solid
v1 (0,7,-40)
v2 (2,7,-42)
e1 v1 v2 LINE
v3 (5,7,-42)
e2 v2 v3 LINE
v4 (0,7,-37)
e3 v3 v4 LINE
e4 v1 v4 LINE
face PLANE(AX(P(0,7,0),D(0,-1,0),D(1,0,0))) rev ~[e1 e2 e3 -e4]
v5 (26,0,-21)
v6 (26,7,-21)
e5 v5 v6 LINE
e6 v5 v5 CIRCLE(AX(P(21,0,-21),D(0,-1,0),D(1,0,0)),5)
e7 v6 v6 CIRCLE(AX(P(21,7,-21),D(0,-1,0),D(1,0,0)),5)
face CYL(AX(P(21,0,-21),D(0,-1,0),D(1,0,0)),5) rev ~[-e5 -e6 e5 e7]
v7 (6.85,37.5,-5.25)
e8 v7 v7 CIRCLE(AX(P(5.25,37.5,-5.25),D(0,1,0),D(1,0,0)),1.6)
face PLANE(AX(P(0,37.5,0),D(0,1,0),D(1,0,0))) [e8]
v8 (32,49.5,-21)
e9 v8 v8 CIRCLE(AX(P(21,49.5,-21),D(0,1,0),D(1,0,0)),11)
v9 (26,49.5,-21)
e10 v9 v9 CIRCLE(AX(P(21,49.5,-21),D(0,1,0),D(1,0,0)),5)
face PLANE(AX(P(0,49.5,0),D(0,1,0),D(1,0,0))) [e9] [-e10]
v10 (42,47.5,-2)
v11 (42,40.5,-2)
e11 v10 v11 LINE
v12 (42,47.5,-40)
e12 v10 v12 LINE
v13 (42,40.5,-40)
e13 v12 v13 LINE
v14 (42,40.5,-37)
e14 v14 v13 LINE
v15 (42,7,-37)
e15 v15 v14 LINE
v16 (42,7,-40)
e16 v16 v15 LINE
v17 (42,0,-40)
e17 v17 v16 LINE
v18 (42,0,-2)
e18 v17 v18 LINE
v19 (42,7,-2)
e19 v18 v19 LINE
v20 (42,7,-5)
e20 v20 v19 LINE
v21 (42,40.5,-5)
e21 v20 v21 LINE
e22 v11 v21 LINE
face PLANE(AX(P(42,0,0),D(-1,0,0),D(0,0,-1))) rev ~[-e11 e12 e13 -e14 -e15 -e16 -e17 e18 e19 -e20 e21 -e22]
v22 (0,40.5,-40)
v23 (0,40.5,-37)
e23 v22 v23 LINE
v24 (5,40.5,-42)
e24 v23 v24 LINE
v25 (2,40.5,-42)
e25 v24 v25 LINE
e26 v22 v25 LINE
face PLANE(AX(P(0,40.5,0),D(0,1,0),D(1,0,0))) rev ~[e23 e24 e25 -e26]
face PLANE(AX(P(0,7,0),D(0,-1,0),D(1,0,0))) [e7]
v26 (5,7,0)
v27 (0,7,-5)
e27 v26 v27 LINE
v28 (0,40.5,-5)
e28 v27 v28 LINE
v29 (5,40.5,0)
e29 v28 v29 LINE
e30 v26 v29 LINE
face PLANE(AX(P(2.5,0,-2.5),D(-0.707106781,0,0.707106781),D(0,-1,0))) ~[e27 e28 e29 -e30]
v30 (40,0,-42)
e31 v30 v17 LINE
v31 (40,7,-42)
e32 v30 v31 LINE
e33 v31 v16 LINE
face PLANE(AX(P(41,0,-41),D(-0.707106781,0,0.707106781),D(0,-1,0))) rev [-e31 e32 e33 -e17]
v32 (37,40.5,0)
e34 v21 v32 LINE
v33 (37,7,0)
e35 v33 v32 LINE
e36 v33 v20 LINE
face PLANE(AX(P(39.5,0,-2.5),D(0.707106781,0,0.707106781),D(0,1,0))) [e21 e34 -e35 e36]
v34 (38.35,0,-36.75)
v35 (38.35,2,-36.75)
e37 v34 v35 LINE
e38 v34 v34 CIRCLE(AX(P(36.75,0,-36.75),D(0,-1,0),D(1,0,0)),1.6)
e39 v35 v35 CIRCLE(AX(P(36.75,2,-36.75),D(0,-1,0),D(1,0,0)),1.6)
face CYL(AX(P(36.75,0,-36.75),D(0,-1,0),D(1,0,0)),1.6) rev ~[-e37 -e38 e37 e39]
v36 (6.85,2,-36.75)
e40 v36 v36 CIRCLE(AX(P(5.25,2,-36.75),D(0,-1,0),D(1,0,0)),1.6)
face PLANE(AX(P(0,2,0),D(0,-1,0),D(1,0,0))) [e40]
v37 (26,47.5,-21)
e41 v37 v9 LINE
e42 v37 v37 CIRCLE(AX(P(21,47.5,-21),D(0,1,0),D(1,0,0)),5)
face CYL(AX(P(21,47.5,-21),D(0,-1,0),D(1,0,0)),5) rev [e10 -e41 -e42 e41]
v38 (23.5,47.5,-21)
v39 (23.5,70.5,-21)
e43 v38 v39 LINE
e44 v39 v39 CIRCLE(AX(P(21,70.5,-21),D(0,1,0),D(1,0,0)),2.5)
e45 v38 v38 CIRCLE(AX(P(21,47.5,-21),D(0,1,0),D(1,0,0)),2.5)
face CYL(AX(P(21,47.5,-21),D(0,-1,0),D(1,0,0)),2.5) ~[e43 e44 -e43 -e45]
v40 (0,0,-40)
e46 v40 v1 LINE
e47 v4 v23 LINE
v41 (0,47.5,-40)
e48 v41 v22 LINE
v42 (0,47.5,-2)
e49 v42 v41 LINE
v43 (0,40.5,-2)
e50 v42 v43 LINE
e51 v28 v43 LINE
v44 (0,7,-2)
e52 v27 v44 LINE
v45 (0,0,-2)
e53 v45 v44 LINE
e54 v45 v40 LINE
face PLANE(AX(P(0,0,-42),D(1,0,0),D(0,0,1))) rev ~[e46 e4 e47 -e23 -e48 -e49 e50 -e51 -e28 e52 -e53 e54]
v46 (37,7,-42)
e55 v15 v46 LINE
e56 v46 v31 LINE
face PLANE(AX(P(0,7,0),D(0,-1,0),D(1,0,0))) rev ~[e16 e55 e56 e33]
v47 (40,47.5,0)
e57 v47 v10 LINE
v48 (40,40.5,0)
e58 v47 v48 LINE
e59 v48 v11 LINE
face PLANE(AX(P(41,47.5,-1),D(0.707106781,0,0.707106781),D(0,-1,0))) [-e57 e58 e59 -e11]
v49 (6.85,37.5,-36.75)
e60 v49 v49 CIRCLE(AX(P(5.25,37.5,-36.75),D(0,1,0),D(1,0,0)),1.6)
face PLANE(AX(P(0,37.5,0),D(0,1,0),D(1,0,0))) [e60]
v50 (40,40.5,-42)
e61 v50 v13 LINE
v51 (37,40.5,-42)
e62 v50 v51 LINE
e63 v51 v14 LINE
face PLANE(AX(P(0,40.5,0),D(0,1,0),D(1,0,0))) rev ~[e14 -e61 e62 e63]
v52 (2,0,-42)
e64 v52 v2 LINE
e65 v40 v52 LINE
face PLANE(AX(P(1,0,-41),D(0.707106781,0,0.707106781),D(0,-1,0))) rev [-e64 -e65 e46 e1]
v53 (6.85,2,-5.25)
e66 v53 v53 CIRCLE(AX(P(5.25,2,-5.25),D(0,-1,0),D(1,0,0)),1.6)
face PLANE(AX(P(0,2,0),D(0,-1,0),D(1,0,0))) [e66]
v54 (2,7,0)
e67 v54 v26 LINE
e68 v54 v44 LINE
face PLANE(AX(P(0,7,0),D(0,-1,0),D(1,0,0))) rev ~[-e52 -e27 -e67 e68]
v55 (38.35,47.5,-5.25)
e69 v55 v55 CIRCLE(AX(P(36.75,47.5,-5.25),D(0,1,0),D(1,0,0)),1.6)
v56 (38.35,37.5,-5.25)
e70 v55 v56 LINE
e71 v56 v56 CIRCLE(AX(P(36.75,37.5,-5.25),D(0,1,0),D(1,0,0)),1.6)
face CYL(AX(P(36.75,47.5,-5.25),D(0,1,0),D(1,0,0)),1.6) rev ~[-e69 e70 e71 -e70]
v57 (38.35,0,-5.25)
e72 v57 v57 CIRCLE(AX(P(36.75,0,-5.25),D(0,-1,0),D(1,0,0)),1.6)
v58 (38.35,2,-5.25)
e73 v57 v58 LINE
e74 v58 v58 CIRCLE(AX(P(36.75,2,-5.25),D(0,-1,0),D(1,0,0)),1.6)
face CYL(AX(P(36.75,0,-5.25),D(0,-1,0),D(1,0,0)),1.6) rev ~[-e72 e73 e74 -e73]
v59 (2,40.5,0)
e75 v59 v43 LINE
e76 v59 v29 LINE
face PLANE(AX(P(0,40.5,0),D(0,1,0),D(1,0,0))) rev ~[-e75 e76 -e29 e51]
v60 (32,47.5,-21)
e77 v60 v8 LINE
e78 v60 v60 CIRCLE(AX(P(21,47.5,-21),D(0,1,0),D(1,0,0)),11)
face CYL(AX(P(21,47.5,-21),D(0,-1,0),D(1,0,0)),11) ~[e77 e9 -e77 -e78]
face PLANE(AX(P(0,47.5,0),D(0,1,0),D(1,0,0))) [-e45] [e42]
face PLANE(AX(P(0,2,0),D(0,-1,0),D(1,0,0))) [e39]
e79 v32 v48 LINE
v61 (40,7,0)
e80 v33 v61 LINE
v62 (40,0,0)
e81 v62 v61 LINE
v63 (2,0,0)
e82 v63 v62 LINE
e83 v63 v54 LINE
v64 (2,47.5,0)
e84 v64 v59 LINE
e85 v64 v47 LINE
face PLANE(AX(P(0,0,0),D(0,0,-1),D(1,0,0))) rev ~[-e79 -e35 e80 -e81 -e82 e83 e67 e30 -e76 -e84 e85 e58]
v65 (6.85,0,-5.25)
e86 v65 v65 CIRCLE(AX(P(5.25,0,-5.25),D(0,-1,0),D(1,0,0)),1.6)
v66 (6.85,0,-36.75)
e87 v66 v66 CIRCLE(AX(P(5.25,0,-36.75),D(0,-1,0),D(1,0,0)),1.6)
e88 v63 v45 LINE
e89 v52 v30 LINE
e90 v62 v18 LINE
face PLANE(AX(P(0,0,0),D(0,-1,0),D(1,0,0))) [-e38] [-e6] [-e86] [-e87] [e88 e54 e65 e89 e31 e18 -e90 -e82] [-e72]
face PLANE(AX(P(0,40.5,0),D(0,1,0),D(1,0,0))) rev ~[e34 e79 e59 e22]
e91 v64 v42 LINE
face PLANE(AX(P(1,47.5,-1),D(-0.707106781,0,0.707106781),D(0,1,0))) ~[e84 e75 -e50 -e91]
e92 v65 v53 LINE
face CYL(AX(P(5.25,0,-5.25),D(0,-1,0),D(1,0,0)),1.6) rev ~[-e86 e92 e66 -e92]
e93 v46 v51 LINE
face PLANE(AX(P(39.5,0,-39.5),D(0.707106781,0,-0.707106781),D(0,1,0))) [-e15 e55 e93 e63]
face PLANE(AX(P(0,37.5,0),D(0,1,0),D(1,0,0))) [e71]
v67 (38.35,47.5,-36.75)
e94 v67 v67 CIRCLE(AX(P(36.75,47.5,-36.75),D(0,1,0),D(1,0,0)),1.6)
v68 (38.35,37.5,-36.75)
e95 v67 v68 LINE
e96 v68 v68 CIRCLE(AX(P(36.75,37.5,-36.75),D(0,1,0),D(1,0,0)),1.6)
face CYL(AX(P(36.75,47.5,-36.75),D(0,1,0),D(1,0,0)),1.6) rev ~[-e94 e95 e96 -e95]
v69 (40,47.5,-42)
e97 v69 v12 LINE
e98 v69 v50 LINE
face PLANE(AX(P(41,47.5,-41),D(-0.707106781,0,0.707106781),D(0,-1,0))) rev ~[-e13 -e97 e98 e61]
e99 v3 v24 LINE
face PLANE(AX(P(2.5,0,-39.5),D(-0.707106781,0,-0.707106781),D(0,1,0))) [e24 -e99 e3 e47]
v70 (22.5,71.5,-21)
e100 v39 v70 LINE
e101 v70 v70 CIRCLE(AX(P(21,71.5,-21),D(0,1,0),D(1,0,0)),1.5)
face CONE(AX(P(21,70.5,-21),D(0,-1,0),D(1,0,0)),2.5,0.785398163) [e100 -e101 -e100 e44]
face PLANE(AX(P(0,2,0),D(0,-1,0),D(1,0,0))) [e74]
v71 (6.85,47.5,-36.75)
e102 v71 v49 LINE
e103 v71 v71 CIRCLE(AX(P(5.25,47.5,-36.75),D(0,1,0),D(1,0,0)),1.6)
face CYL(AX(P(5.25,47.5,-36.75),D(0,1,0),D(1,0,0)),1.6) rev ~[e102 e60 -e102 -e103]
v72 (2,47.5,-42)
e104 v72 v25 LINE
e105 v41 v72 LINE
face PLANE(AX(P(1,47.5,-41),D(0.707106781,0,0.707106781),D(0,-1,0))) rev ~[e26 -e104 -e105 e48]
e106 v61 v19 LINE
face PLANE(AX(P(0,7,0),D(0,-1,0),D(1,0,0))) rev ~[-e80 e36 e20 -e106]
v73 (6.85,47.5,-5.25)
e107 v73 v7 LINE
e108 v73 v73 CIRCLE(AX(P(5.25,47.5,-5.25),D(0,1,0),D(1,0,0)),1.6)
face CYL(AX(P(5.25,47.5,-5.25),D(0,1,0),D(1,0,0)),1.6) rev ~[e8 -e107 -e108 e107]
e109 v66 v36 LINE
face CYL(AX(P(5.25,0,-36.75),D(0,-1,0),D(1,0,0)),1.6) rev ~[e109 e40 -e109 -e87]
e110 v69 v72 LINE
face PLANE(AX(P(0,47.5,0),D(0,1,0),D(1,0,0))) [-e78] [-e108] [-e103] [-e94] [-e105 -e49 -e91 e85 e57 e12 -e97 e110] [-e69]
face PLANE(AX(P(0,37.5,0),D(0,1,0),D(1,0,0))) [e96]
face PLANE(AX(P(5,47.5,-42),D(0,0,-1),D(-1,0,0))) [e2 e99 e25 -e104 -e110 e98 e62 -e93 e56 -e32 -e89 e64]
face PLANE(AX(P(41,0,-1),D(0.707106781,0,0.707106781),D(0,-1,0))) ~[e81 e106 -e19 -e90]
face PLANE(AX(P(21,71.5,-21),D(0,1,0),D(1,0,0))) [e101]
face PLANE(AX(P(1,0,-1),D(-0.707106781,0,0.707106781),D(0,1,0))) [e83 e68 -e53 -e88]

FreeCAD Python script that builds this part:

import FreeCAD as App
import Part
import Sketcher

V = App.Vector
Q = App.Units.Quantity


def edges_at(feature, points):
    """Names of the edges that pass closest to the given points."""
    edges = feature.Shape.Edges
    near = lambda p: min(range(len(edges)), key=lambda i: edges[i].distToShape(Part.Vertex(*p))[0])
    return sorted({f"Edge{near(p) + 1}" for p in points})

doc = App.newDocument("Part")
body = doc.addObject("PartDesign::Body", "Body")

sketch1 = body.newObject("Sketcher::SketchObject", "Sketch")
sketch1.AttachmentSupport = (doc.getObject("XZ_Plane"), [""])
sketch1.MapMode = "FlatFace"
sketch1.addGeometry(Part.LineSegment(V(0, -42, 0), V(0, 0, 0)), False)
sketch1.addGeometry(Part.LineSegment(V(0, 0, 0), V(42, 0, 0)), False)
sketch1.addGeometry(Part.LineSegment(V(42, 0, 0), V(42, -42, 0)), False)
sketch1.addGeometry(Part.LineSegment(V(42, -42, 0), V(0, -42, 0)), False)
sketch1.addConstraint(Sketcher.Constraint("Coincident", 0, 2, 1, 1))
sketch1.addConstraint(Sketcher.Constraint("Coincident", 1, 2, 2, 1))
sketch1.addConstraint(Sketcher.Constraint("Coincident", 2, 2, 3, 1))
sketch1.addConstraint(Sketcher.Constraint("Coincident", 3, 2, 0, 1))
sketch1.addConstraint(Sketcher.Constraint("Vertical", 0))
sketch1.addConstraint(Sketcher.Constraint("Horizontal", 1))
sketch1.addConstraint(Sketcher.Constraint("Vertical", 2))
sketch1.addConstraint(Sketcher.Constraint("Horizontal", 3))
sketch1.addConstraint(Sketcher.Constraint("Coincident", 0, 2, -1, 1))
sketch1.addConstraint(Sketcher.Constraint("Equal", 3, 0))
sketch1.addConstraint(Sketcher.Constraint("DistanceX", 1, 1, 1, 2, Q("42 mm")))
pad1 = body.newObject("PartDesign::Pad", "Pad")
pad1.Profile = sketch1
pad1.Length = 47.5
pad1.Reversed = True
doc.recompute()

chamfer = body.newObject("PartDesign::Chamfer", "Chamfer")
chamfer.Base = (pad1, edges_at(pad1, [
    (42, 23.75, 0),
    (0, 23.75, 0),
    (0, 23.75, -42),
    (42, 23.75, -42),
]))
chamfer.Size = 5

sketch2 = body.newObject("Sketcher::SketchObject", "Sketch001")
sketch2.AttachmentSupport = (doc.getObject("XZ_Plane"), [""])
sketch2.MapMode = "FlatFace"
sketch2.AttachmentOffset = App.Placement(V(0, 0, -47.5), App.Rotation())
sketch2.addGeometry(Part.LineSegment(V(0, -42, 0), V(0, 0, 0)), False)
sketch2.addGeometry(Part.LineSegment(V(0, 0, 0), V(42, 0, 0)), False)
sketch2.addGeometry(Part.LineSegment(V(42, 0, 0), V(42, -42, 0)), False)
sketch2.addGeometry(Part.LineSegment(V(42, -42, 0), V(0, -42, 0)), False)
sketch2.addConstraint(Sketcher.Constraint("Coincident", 0, 2, 1, 1))
sketch2.addConstraint(Sketcher.Constraint("Coincident", 1, 2, 2, 1))
sketch2.addConstraint(Sketcher.Constraint("Coincident", 2, 2, 3, 1))
sketch2.addConstraint(Sketcher.Constraint("Coincident", 3, 2, 0, 1))
sketch2.addConstraint(Sketcher.Constraint("Vertical", 0))
sketch2.addConstraint(Sketcher.Constraint("Horizontal", 1))
sketch2.addConstraint(Sketcher.Constraint("Vertical", 2))
sketch2.addConstraint(Sketcher.Constraint("Horizontal", 3))
sketch2.addConstraint(Sketcher.Constraint("Coincident", 0, 2, -1, 1))
sketch2.addConstraint(Sketcher.Constraint("Equal", 3, 0))
sketch2.addConstraint(Sketcher.Constraint("DistanceX", 1, 1, 1, 2, Q("42 mm")))
pad2 = body.newObject("PartDesign::Pad", "Pad001")
pad2.Profile = sketch2
pad2.Length = 7

sketch3 = body.newObject("Sketcher::SketchObject", "Sketch002")
sketch3.AttachmentSupport = (doc.getObject("XZ_Plane"), [""])
sketch3.MapMode = "FlatFace"
sketch3.addGeometry(Part.LineSegment(V(42, 0, 0), V(0, 0, 0)), False)
sketch3.addGeometry(Part.LineSegment(V(0, 0, 0), V(0, -42, 0)), False)
sketch3.addGeometry(Part.LineSegment(V(0, -42, 0), V(42, -42, 0)), False)
sketch3.addGeometry(Part.LineSegment(V(42, -42, 0), V(42, 0, 0)), False)
sketch3.addConstraint(Sketcher.Constraint("Coincident", 0, 2, 1, 1))
sketch3.addConstraint(Sketcher.Constraint("Coincident", 1, 2, 2, 1))
sketch3.addConstraint(Sketcher.Constraint("Coincident", 2, 2, 3, 1))
sketch3.addConstraint(Sketcher.Constraint("Coincident", 3, 2, 0, 1))
sketch3.addConstraint(Sketcher.Constraint("Horizontal", 0))
sketch3.addConstraint(Sketcher.Constraint("Vertical", 1))
sketch3.addConstraint(Sketcher.Constraint("Horizontal", 2))
sketch3.addConstraint(Sketcher.Constraint("Vertical", 3))
sketch3.addConstraint(Sketcher.Constraint("Coincident", 0, 2, -1, 1))
sketch3.addConstraint(Sketcher.Constraint("Equal", 2, 1))
sketch3.addConstraint(Sketcher.Constraint("DistanceX", 0, 2, 0, 1, Q("42 mm")))
pad3 = body.newObject("PartDesign::Pad", "Pad002")
pad3.Profile = sketch3
pad3.Length = 7
pad3.Reversed = True
doc.recompute()

chamfer2 = body.newObject("PartDesign::Chamfer", "Chamfer001")
chamfer2.Base = (pad3, edges_at(pad3, [
    (42, 44, 0),
    (42, 3.5, 0),
    (42, 44, -42),
    (42, 3.5, -42),
    (0, 3.5, -42),
    (0, 3.5, 0),
    (0, 44, 0),
    (0, 44, -42),
]))
chamfer2.Size = 2

sketch4 = body.newObject("Sketcher::SketchObject", "Sketch003")
sketch4.AttachmentSupport = (doc.getObject("XZ_Plane"), [""])
sketch4.MapMode = "FlatFace"
sketch4.addGeometry(Part.Circle(V(21, -21, 0), V(0, 0, 1), 5), False)
sketch4.addConstraint(Sketcher.Constraint("Diameter", 0, Q("10 mm")))
sketch4.addConstraint(Sketcher.Constraint("DistanceX", -1, 1, 0, 3, Q("21 mm")))
sketch4.addConstraint(Sketcher.Constraint("DistanceY", 0, 3, -1, 1, Q("21 mm")))
pocket1 = body.newObject("PartDesign::Pocket", "Pocket")
pocket1.Profile = sketch4
pocket1.Length = 7

sketch5 = body.newObject("Sketcher::SketchObject", "Sketch004")
sketch5.AttachmentSupport = (doc.getObject("XZ_Plane"), [""])
sketch5.MapMode = "FlatFace"
sketch5.AttachmentOffset = App.Placement(V(0, 0, -47.5), App.Rotation())
sketch5.addGeometry(Part.Circle(V(21, -21, 0), V(0, 0, 1), 11), False)
sketch5.addGeometry(Part.Circle(V(21, -21, 0), V(0, 0, 1), 5), False)
sketch5.addConstraint(Sketcher.Constraint("Coincident", 1, 3, 0, 3))
sketch5.addConstraint(Sketcher.Constraint("Diameter", 0, Q("22 mm")))
sketch5.addConstraint(Sketcher.Constraint("Diameter", 1, Q("10 mm")))
sketch5.addConstraint(Sketcher.Constraint("DistanceX", -1, 1, 0, 3, Q("21 mm")))
sketch5.addConstraint(Sketcher.Constraint("DistanceY", 0, 3, -1, 1, Q("21 mm")))
pad4 = body.newObject("PartDesign::Pad", "Pad003")
pad4.Profile = sketch5
pad4.Length = 2
pad4.Reversed = True

sketch6 = body.newObject("Sketcher::SketchObject", "Sketch005")
sketch6.AttachmentSupport = (doc.getObject("XZ_Plane"), [""])
sketch6.MapMode = "FlatFace"
sketch6.AttachmentOffset = App.Placement(V(0, 0, -47.5), App.Rotation())
sketch6.addGeometry(Part.Circle(V(5.2, -5.2, 0), V(0, 0, 1), 1.6), False)
sketch6.addGeometry(Part.Circle(V(5.2, -36.8, 0), V(0, 0, 1), 1.6), False)
sketch6.addGeometry(Part.Circle(V(36.8, -36.8, 0), V(0, 0, 1), 1.6), False)
sketch6.addGeometry(Part.Circle(V(36.8, -5.2, 0), V(0, 0, 1), 1.6), False)
sketch6.addConstraint(Sketcher.Constraint("Equal", 0, 1))
sketch6.addConstraint(Sketcher.Constraint("Equal", 1, 2))
sketch6.addConstraint(Sketcher.Constraint("Equal", 2, 3))
sketch6.addConstraint(Sketcher.Constraint("Horizontal", 1, 3, 2, 3))
sketch6.addConstraint(Sketcher.Constraint("Horizontal", 0, 3, 3, 3))
sketch6.addConstraint(Sketcher.Constraint("Vertical", 0, 3, 1, 3))
sketch6.addConstraint(Sketcher.Constraint("Vertical", 2, 3, 3, 3))
sketch6.addConstraint(Sketcher.Constraint("Diameter", 0, Q("3.2 mm")))
sketch6.addConstraint(Sketcher.Constraint("DistanceY", 1, 3, 0, 3, Q("31.5 mm")))
sketch6.addConstraint(Sketcher.Constraint("DistanceX", 1, 3, 2, 3, Q("31.5 mm")))
sketch6.addConstraint(Sketcher.Constraint("DistanceX", -1, 1, 0, 3, Q("5.25 mm")))
sketch6.addConstraint(Sketcher.Constraint("DistanceY", 0, 3, -1, 1, Q("5.25 mm")))
pocket2 = body.newObject("PartDesign::Pocket", "Pocket001")
pocket2.Profile = sketch6
pocket2.Length = 10
pocket2.Reversed = True

sketch7 = body.newObject("Sketcher::SketchObject", "Sketch006")
sketch7.AttachmentSupport = (doc.getObject("XZ_Plane"), [""])
sketch7.MapMode = "FlatFace"
sketch7.addGeometry(Part.Circle(V(5.2, -36.8, 0), V(0, 0, 1), 1.6), False)
sketch7.addGeometry(Part.Circle(V(5.2, -5.2, 0), V(0, 0, 1), 1.6), False)
sketch7.addGeometry(Part.Circle(V(36.8, -36.8, 0), V(0, 0, 1), 1.6), False)
sketch7.addGeometry(Part.Circle(V(36.8, -5.2, 0), V(0, 0, 1), 1.6), False)
sketch7.addConstraint(Sketcher.Constraint("Equal", 0, 1))
sketch7.addConstraint(Sketcher.Constraint("Equal", 1, 2))
sketch7.addConstraint(Sketcher.Constraint("Equal", 2, 3))
sketch7.addConstraint(Sketcher.Constraint("Horizontal", 0, 3, 2, 3))
sketch7.addConstraint(Sketcher.Constraint("Horizontal", 1, 3, 3, 3))
sketch7.addConstraint(Sketcher.Constraint("Vertical", 0, 3, 1, 3))
sketch7.addConstraint(Sketcher.Constraint("Vertical", 2, 3, 3, 3))
sketch7.addConstraint(Sketcher.Constraint("Diameter", 0, Q("3.2 mm")))
sketch7.addConstraint(Sketcher.Constraint("DistanceY", 0, 3, 1, 3, Q("31.5 mm")))
sketch7.addConstraint(Sketcher.Constraint("DistanceX", 0, 3, 2, 3, Q("31.5 mm")))
sketch7.addConstraint(Sketcher.Constraint("DistanceX", -1, 1, 0, 3, Q("5.25 mm")))
sketch7.addConstraint(Sketcher.Constraint("DistanceY", 0, 3, -1, 1, Q("36.75 mm")))
pocket3 = body.newObject("PartDesign::Pocket", "Pocket002")
pocket3.Profile = sketch7
pocket3.Length = 2

sketch8 = body.newObject("Sketcher::SketchObject", "Sketch007")
sketch8.AttachmentSupport = (doc.getObject("XZ_Plane"), [""])
sketch8.MapMode = "FlatFace"
sketch8.AttachmentOffset = App.Placement(V(0, 0, -47.5), App.Rotation())
sketch8.addGeometry(Part.Circle(V(21, -21, 0), V(0, 0, 1), 2.5), False)
sketch8.addConstraint(Sketcher.Constraint("Diameter", 0, Q("5 mm")))
sketch8.addConstraint(Sketcher.Constraint("DistanceX", -1, 1, 0, 3, Q("21 mm")))
sketch8.addConstraint(Sketcher.Constraint("DistanceY", 0, 3, -1, 1, Q("21 mm")))
pad5 = body.newObject("PartDesign::Pad", "Pad004")
pad5.Profile = sketch8
pad5.Length = 24
pad5.Reversed = True
doc.recompute()

chamfer3 = body.newObject("PartDesign::Chamfer", "Chamfer002")
chamfer3.Base = (pad5, edges_at(pad5, [(18.5, 71.5, -21)]))
chamfer3.Size = 1

doc.recompute()
